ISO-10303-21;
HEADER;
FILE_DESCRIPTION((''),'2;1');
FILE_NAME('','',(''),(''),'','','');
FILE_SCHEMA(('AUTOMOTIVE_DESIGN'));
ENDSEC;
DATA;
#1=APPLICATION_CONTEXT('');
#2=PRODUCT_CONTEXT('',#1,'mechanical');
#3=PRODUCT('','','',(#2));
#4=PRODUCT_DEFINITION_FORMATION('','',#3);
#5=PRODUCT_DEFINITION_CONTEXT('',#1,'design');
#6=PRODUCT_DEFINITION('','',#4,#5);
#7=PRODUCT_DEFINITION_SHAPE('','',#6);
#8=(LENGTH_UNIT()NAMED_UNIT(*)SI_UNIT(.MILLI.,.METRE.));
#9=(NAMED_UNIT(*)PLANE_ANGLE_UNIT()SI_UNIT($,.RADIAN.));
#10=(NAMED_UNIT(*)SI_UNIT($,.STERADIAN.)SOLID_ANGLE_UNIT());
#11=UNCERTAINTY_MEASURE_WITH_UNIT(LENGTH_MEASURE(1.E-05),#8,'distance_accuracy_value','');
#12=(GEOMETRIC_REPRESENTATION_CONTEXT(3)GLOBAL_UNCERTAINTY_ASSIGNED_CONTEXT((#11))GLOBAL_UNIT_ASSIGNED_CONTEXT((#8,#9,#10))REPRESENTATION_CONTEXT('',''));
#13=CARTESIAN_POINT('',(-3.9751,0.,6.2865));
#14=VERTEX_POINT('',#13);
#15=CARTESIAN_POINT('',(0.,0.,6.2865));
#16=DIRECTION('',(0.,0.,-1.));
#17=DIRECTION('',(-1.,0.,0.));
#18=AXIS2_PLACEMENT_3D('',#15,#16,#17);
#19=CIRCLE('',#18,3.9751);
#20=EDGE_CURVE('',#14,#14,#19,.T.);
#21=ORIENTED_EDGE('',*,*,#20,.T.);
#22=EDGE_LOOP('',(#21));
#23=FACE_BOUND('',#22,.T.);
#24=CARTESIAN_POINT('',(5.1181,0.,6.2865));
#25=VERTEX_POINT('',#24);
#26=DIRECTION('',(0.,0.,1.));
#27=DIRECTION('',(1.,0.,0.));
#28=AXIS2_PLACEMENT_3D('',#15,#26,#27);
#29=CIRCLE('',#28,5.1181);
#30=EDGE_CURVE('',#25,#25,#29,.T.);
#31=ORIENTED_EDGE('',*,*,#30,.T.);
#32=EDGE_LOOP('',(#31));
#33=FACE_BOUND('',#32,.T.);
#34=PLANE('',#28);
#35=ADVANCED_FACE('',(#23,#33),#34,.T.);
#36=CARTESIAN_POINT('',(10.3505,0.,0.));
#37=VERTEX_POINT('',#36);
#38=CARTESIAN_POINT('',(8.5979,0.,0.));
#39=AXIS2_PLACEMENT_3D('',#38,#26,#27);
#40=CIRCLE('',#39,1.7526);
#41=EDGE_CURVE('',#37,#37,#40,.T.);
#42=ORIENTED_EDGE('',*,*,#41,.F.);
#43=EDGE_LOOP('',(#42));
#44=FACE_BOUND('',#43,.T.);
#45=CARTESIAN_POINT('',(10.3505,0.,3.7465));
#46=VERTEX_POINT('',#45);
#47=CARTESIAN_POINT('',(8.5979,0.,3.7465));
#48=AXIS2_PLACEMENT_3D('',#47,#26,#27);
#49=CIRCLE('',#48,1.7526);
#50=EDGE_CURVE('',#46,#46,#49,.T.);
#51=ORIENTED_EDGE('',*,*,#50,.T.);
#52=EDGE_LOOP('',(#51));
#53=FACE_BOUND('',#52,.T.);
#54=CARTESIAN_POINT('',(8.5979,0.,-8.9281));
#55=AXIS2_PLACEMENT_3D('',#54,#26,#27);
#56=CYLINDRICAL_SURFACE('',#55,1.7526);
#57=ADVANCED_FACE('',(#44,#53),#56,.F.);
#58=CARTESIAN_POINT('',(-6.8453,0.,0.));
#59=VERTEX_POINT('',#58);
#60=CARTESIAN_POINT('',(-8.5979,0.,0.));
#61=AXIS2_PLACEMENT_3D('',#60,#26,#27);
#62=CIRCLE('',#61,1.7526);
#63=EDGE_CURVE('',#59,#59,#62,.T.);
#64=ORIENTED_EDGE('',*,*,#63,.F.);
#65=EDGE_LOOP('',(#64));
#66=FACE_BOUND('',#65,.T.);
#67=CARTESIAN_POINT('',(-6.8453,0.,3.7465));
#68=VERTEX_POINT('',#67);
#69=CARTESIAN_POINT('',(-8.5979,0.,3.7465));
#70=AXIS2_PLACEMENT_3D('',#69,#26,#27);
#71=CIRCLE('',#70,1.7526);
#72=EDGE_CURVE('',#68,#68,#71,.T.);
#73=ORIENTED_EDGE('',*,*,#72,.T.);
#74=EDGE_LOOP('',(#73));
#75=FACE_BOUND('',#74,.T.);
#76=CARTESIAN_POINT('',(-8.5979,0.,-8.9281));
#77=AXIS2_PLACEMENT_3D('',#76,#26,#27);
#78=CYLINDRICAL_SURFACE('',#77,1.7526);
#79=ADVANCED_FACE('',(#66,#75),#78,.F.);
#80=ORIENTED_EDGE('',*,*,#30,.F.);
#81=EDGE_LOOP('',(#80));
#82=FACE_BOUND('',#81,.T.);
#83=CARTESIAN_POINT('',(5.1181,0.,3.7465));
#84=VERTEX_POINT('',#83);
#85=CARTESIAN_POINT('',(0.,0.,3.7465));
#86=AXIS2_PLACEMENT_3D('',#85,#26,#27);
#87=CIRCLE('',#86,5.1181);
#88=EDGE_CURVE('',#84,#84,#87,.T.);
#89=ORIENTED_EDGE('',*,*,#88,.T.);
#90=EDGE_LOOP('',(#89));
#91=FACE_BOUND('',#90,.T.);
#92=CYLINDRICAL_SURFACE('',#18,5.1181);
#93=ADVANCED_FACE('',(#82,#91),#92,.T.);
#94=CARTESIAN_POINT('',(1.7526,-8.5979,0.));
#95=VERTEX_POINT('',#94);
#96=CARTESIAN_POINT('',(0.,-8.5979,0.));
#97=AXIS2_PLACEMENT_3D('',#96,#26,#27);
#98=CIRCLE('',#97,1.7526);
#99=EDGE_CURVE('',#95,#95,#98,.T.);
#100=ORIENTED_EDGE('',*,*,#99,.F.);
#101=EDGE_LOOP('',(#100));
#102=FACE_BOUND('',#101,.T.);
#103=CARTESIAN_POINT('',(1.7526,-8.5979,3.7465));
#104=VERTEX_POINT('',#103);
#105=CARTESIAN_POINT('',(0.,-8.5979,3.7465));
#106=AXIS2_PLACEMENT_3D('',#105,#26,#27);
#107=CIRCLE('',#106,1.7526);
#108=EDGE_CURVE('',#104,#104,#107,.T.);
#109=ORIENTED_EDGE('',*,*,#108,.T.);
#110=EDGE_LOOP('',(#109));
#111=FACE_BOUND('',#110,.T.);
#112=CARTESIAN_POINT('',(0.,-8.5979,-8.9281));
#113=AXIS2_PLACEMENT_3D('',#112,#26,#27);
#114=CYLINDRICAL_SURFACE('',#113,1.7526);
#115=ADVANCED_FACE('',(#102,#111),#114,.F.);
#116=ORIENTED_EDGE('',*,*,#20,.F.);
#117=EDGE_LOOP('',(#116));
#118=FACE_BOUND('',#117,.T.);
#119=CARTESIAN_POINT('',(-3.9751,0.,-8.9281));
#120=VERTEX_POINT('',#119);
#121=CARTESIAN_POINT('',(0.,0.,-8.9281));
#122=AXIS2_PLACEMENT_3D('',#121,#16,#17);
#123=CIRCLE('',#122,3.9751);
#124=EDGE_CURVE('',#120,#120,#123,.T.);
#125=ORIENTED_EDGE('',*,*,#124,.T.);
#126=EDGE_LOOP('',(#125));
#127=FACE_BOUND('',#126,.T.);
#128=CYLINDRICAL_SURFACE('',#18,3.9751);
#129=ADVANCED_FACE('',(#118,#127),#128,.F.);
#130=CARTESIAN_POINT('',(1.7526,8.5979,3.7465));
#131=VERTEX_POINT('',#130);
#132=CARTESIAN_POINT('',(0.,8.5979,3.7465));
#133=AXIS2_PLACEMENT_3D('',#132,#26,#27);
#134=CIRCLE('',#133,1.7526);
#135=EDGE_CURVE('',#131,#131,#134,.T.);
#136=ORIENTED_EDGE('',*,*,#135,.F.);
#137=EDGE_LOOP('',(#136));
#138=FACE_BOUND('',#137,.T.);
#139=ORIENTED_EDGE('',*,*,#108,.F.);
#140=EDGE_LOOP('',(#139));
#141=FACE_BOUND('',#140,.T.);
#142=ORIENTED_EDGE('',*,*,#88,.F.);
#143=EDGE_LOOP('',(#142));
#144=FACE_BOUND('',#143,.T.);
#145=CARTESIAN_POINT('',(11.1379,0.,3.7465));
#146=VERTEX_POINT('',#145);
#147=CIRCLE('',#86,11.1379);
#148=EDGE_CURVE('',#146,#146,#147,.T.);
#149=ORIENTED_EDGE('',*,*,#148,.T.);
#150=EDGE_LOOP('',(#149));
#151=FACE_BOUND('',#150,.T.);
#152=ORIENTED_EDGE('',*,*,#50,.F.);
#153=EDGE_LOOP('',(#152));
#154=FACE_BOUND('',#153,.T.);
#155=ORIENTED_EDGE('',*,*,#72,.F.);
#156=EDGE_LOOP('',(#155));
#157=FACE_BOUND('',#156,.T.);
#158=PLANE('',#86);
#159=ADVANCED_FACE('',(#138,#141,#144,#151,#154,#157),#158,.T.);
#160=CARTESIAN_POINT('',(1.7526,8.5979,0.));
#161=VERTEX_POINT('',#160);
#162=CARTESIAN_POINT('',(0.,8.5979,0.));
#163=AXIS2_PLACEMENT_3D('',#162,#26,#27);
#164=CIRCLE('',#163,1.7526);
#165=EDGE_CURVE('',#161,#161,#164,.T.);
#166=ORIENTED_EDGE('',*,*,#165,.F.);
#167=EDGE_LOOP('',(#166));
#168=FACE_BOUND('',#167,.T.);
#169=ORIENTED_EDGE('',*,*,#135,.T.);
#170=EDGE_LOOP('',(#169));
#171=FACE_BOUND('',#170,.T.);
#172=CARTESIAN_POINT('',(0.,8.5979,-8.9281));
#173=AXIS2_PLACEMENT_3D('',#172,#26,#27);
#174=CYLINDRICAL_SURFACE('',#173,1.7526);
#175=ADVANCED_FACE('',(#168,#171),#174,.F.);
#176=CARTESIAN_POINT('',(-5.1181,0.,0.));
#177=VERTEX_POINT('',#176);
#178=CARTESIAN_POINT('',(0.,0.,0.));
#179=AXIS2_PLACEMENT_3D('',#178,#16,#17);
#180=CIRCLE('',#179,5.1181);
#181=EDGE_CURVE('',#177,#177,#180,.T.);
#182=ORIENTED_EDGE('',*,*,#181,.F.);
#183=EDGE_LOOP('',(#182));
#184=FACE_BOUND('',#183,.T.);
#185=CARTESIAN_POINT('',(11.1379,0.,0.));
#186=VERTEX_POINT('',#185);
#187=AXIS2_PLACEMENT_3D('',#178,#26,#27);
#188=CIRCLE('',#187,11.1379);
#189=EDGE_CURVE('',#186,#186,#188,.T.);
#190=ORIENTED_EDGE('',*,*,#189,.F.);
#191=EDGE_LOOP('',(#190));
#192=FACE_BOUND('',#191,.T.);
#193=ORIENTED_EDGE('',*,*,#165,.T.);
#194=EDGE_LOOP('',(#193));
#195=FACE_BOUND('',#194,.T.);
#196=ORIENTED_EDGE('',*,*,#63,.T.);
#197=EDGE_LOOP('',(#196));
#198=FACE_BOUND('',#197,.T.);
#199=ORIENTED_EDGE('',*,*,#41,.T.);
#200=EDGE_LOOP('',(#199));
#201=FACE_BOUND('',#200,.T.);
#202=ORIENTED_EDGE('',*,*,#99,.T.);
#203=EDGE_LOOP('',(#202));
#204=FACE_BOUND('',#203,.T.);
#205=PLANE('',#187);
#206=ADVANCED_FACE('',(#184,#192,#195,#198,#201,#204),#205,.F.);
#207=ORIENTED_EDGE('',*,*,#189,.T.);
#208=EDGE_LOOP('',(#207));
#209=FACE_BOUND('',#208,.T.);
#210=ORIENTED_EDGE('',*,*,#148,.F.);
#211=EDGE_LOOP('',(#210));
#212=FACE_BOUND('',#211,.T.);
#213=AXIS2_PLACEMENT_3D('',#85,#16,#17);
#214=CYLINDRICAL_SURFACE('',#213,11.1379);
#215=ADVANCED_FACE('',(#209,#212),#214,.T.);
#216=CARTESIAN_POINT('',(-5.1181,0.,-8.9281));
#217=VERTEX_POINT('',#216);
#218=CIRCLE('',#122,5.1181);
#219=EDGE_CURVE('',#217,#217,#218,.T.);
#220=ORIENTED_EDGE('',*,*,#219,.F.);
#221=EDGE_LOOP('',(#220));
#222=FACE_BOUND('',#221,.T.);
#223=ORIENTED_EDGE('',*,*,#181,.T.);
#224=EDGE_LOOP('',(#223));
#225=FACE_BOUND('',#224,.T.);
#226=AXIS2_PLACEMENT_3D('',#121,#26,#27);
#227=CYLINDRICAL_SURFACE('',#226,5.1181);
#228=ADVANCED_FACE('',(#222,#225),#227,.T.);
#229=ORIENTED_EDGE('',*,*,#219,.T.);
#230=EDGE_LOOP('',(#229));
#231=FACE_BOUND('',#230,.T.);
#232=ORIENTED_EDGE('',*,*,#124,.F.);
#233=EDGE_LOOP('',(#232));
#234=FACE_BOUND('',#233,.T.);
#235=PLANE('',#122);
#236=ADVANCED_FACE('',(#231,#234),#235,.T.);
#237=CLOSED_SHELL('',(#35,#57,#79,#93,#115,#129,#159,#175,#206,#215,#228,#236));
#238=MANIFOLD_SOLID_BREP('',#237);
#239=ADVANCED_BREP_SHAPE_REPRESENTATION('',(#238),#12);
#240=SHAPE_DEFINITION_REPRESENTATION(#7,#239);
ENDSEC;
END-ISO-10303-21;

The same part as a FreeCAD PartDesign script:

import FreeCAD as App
import Part
import Sketcher

V = App.Vector
Q = App.Units.Quantity

doc = App.newDocument("Part")
body = doc.addObject("PartDesign::Body", "Body")

sketch1 = doc.addObject("Sketcher::SketchObject", "Sketch")
body.addObject(sketch1)
sketch1.AttachmentSupport = (doc.XY_Plane, [""])
sketch1.MapMode = "FlatFace"
sketch1.addGeometry(Part.Circle(V(0, 0, 0), V(0, 0, 1), 11), False)
sketch1.addConstraint([
    Sketcher.Constraint("Coincident", 0, 3, -1, 1),
    Sketcher.Constraint("Diameter", 0, Q("0.877 in")),
])
pad1 = doc.addObject("PartDesign::Pad", "Pad")
body.addObject(pad1)
pad1.Profile = sketch1
pad1.Length = Q("0.1475 in")

sketch2 = doc.addObject("Sketcher::SketchObject", "Sketch001")
body.addObject(sketch2)
sketch2.AttachmentSupport = (doc.XY_Plane, [""])
sketch2.MapMode = "FlatFace"
sketch2.addGeometry(Part.Circle(V(0, 0, 0), V(0, 0, 1), 5), False)
sketch2.addConstraint([
    Sketcher.Constraint("Coincident", 0, 3, -1, 1),
    Sketcher.Constraint("Diameter", 0, Q("0.403 in")),
])
pad2 = doc.addObject("PartDesign::Pad", "Pad001")
body.addObject(pad2)
pad2.Profile = sketch2
pad2.Length = Q("0.3515 in")
pad2.Reversed = True

sketch3 = doc.addObject("Sketcher::SketchObject", "Sketch002")
body.addObject(sketch3)
sketch3.AttachmentSupport = (doc.XY_Plane, [""])
sketch3.MapMode = "FlatFace"
sketch3.AttachmentOffset = App.Placement(V(0, 0, 0.1475 * 25.4), App.Rotation())
sketch3.addGeometry(Part.Circle(V(0, 0, 0), V(0, 0, 1), 5), False)
sketch3.addConstraint([
    Sketcher.Constraint("Coincident", 0, 3, -1, 1),
    Sketcher.Constraint("Diameter", 0, Q("0.403 in")),
])
pad3 = doc.addObject("PartDesign::Pad", "Pad002")
body.addObject(pad3)
pad3.Profile = sketch3
pad3.Length = Q("0.1 in")

sketch4 = doc.addObject("Sketcher::SketchObject", "Sketch003")
body.addObject(sketch4)
sketch4.AttachmentSupport = (doc.XY_Plane, [""])
sketch4.MapMode = "FlatFace"
sketch4.AttachmentOffset = App.Placement(V(0, 0, -0.3515 * 25.4), App.Rotation())
sketch4.addGeometry(Part.Circle(V(0, 0, 0), V(0, 0, 1), 4), False)
sketch4.addConstraint([
    Sketcher.Constraint("Coincident", 0, 3, -1, 1),
    Sketcher.Constraint("Diameter", 0, Q("0.313 in")),
])
pocket1 = doc.addObject("PartDesign::Pocket", "Pocket")
body.addObject(pocket1)
pocket1.Profile = sketch4
pocket1.Type = "ThroughAll"
pocket1.Reversed = True

sketch5 = doc.addObject("Sketcher::SketchObject", "Sketch004")
body.addObject(sketch5)
sketch5.AttachmentSupport = (doc.XY_Plane, [""])
sketch5.MapMode = "FlatFace"
sketch5.AttachmentOffset = App.Placement(V(0, 0, 0.1475 * 25.4), App.Rotation())
sketch5.addGeometry([
    Part.Circle(V(0, 8.6, 0), V(0, 0, 1), 1.8),
    Part.Circle(V(8.6, 0, 0), V(0, 0, 1), 1.8),
    Part.Circle(V(0, -8.6, 0), V(0, 0, 1), 1.8),
    Part.Circle(V(-8.6, 0, 0), V(0, 0, 1), 1.8),
], False)
sketch5.addConstraint([
    Sketcher.Constraint("Equal", 0, 1),
    Sketcher.Constraint("Equal", 1, 2),
    Sketcher.Constraint("Equal", 2, 3),
    Sketcher.Constraint("Symmetric", 0, 3, 2, 3, -1, 1),
    Sketcher.Constraint("Symmetric", 1, 3, 3, 3, -1, 1),
    Sketcher.Constraint("PointOnObject", 0, 3, -2),
    Sketcher.Constraint("PointOnObject", 1, 3, -1),
    Sketcher.Constraint("Diameter", 0, Q("0.138 in")),
    Sketcher.Constraint("DistanceY", 2, 3, 0, 3, Q("0.677 in")),
    Sketcher.Constraint("DistanceX", 3, 3, 1, 3, Q("0.677 in")),
])
pocket2 = doc.addObject("PartDesign::Pocket", "Pocket001")
body.addObject(pocket2)
pocket2.Profile = sketch5
pocket2.Type = "ThroughAll"

doc.recompute()
